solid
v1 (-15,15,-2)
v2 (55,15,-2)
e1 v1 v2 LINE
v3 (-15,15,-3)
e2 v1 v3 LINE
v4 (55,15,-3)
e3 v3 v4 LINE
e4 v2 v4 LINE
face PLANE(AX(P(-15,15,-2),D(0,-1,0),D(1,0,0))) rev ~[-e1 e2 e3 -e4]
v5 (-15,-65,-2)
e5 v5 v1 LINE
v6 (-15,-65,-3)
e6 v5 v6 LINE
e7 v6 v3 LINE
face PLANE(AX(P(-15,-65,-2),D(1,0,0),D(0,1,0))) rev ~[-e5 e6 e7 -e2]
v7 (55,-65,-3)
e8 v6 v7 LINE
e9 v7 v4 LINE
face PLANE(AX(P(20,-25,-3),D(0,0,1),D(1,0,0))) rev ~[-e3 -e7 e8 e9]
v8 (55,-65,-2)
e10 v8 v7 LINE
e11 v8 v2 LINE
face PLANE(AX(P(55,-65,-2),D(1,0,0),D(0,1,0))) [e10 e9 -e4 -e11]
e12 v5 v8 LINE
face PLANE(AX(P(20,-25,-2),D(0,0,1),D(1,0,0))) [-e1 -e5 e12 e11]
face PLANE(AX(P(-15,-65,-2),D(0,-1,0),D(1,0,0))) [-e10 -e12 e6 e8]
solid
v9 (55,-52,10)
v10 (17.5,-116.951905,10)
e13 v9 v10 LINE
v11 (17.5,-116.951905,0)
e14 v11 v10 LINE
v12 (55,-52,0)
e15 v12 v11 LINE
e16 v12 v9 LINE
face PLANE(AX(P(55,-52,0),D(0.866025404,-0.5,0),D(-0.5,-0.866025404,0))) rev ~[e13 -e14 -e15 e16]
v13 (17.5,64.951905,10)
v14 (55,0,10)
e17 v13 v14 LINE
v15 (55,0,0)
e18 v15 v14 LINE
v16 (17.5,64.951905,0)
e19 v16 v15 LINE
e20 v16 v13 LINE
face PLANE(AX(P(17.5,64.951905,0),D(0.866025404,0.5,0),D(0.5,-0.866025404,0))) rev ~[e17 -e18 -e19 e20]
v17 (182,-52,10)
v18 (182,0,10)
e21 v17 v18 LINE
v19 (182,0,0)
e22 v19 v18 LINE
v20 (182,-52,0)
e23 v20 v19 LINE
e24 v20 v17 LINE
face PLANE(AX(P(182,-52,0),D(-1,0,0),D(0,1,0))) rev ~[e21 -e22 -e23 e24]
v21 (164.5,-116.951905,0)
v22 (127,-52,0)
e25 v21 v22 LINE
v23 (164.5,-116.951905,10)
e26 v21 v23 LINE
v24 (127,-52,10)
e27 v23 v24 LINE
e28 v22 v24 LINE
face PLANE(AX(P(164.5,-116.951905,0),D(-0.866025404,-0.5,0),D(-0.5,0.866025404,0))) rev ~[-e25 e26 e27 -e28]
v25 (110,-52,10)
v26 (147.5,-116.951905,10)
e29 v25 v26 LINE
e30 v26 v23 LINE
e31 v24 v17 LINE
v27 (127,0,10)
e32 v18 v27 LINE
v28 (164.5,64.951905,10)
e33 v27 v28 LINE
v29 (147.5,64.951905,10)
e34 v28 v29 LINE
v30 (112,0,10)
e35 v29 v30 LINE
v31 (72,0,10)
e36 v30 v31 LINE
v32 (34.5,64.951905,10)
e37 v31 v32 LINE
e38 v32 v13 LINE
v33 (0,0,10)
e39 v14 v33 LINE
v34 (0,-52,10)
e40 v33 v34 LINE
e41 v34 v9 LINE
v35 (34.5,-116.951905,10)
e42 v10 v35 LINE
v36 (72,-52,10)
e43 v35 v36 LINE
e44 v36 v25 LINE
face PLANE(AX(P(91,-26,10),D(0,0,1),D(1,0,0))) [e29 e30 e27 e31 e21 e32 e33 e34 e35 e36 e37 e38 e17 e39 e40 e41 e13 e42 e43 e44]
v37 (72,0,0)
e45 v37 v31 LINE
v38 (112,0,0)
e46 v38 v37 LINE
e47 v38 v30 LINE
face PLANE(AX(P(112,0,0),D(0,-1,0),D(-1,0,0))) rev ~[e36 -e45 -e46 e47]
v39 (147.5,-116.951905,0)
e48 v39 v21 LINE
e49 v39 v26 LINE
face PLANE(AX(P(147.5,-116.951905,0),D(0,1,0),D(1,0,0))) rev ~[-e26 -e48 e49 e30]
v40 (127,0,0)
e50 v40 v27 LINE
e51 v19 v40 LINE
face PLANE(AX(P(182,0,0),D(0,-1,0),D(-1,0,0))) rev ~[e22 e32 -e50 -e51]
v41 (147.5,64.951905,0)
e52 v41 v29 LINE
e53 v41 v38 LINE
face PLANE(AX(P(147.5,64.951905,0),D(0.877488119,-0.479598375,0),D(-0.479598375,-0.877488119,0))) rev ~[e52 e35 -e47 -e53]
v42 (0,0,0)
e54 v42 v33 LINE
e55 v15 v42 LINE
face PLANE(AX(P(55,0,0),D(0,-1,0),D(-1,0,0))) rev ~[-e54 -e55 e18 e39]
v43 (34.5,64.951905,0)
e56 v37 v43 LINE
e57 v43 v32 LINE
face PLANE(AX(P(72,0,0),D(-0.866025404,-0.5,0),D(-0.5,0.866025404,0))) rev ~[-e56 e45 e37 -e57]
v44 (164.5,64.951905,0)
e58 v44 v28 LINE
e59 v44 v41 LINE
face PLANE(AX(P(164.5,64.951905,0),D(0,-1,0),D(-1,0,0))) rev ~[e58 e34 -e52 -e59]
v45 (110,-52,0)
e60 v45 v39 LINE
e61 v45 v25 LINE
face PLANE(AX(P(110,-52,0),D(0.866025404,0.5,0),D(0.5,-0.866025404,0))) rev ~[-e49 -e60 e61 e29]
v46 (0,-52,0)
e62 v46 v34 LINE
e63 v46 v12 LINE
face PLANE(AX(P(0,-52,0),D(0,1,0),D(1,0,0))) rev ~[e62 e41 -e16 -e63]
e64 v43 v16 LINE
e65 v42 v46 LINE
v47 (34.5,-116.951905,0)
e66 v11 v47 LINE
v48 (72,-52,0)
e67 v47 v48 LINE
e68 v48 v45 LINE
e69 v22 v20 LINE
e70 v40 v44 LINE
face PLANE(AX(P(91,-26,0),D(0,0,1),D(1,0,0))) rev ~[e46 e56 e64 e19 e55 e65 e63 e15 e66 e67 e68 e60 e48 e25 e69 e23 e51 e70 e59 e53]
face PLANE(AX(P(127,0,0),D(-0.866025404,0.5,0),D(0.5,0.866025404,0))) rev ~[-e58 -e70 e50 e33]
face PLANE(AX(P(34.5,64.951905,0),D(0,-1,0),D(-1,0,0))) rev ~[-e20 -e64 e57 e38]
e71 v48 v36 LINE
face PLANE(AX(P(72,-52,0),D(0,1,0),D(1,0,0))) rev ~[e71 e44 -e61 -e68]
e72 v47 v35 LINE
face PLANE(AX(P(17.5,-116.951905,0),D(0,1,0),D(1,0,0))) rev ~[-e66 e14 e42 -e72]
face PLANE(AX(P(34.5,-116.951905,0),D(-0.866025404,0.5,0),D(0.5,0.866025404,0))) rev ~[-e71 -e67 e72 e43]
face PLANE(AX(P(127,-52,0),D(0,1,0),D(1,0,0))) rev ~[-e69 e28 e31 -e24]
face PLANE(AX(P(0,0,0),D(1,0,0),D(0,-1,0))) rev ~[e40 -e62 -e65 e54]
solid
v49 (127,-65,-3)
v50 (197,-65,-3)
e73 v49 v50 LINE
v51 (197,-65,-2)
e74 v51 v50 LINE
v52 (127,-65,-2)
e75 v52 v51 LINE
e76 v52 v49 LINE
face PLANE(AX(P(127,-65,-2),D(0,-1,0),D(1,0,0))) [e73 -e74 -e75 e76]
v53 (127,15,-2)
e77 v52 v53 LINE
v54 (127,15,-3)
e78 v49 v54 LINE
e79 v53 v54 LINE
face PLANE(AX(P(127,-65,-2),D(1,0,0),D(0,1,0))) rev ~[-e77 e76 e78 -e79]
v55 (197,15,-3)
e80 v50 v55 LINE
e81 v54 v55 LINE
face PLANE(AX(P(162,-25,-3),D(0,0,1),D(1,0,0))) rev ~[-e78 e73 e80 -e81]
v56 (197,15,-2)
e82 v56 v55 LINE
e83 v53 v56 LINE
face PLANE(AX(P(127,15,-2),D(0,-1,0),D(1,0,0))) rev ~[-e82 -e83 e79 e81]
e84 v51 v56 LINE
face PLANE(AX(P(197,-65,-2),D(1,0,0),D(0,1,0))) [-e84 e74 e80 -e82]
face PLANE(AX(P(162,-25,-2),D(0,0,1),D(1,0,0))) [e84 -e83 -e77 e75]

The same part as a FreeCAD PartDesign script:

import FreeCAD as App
import Part
import Sketcher

V = App.Vector
Q = App.Units.Quantity


def add_polygon(sketch, points):
    """Adds a closed chain of lines whose ends are joined by coincident constraints."""
    first, n = sketch.GeometryCount, len(points)
    for a, b in zip(points, points[1:] + points[:1]):
        sketch.addGeometry(Part.LineSegment(App.Vector(*a, 0), App.Vector(*b, 0)), False)
    for i in range(n):
        sketch.addConstraint(Sketcher.Constraint("Coincident", first + i, 2, first + (i + 1) % n, 1))

doc = App.newDocument("Part")
body = doc.addObject("PartDesign::Body", "Body")

sketch1 = body.newObject("Sketcher::SketchObject", "Sketch")
sketch1.AttachmentSupport = (doc.getObject("XY_Plane"), [""])
sketch1.MapMode = "FlatFace"
add_polygon(sketch1, [(0, 0), (0, -52), (55, -52), (18, -117), (34, -117), (72, -52), (110, -52), (148, -117), (164, -117), (127, -52), (182, -52), (182, 0), (127, 0), (164, 65), (148, 65), (112, 0), (72, 0), (34, 65), (18, 65), (55, 0)])
sketch1.addConstraint([
    Sketcher.Constraint("Vertical", 0),
    Sketcher.Constraint("Horizontal", 1),
    Sketcher.Constraint("Horizontal", 3),
    Sketcher.Constraint("Horizontal", 5),
    Sketcher.Constraint("Horizontal", 7),
    Sketcher.Constraint("Horizontal", 9),
    Sketcher.Constraint("Vertical", 10),
    Sketcher.Constraint("Horizontal", 11),
    Sketcher.Constraint("Horizontal", 13),
    Sketcher.Constraint("Horizontal", 15),
    Sketcher.Constraint("Horizontal", 17),
    Sketcher.Constraint("Horizontal", 19),
    Sketcher.Constraint("Coincident", 19, 2, -1, 1),
    Sketcher.Constraint("PointOnObject", 10, 2, -1),
    Sketcher.Constraint("PointOnObject", 14, 2, -1),
    Sketcher.Constraint("Parallel", 2, 4),
    Sketcher.Constraint("Parallel", 6, 8),
    Sketcher.Constraint("Parallel", 4, 12),
    Sketcher.Constraint("Parallel", 8, 16),
    Sketcher.Constraint("Parallel", 16, 18),
    Sketcher.Constraint("Horizontal", 1, 2, 4, 2),
    Sketcher.Constraint("Horizontal", 3, 2, 6, 2),
    Sketcher.Constraint("Horizontal", 5, 2, 8, 2),
    Sketcher.Constraint("Horizontal", 13, 2, 16, 2),
    Sketcher.Constraint("Vertical", 8, 2, 11, 2),
    Sketcher.Constraint("Vertical", 7, 2, 12, 2),
    Sketcher.Constraint("Vertical", 6, 2, 13, 2),
    Sketcher.Constraint("Vertical", 4, 2, 15, 2),
    Sketcher.Constraint("Vertical", 3, 2, 16, 2),
    Sketcher.Constraint("Vertical", 2, 2, 17, 2),
    Sketcher.Constraint("Equal", 3, 7),
    Sketcher.Constraint("Equal", 1, 9),
    Sketcher.Constraint("DistanceX", 1, 1, 1, 2, 55.0),
    Sketcher.Constraint("DistanceX", 3, 1, 3, 2, 17.0),
    Sketcher.Constraint("DistanceX", 5, 1, 5, 2, 38.0),
    Sketcher.Constraint("DistanceX", 15, 2, 15, 1, 40.0),
    Sketcher.Constraint("DistanceY", 0, 2, 0, 1, 52.0),
    Sketcher.Constraint("Angle", 2, Q("-120 deg")),
    Sketcher.Constraint("Distance", 2, 75.0),
])
pad1 = body.newObject("PartDesign::Pad", "Pad")
pad1.Profile = sketch1
pad1.Length = 10
body2 = doc.addObject("PartDesign::Body", "Body001")

sketch2 = body2.newObject("Sketcher::SketchObject", "Sketch001")
sketch2.AttachmentSupport = (doc.getObject("XY_Plane001"), [""])
sketch2.MapMode = "FlatFace"
sketch2.AttachmentOffset = App.Placement(V(0, 0, -2), App.Rotation())
add_polygon(sketch2, [(-15, 15), (-15, -65), (55, -65), (55, 15)])
sketch2.addConstraint([
    Sketcher.Constraint("Vertical", 0),
    Sketcher.Constraint("Horizontal", 1),
    Sketcher.Constraint("Vertical", 2),
    Sketcher.Constraint("Horizontal", 3),
    Sketcher.Constraint("DistanceX", 1, 1, 1, 2, 70.0),
    Sketcher.Constraint("DistanceY", 0, 2, 0, 1, 80.0),
    Sketcher.Constraint("DistanceX", 0, 2, -1, 1, 15.0),
    Sketcher.Constraint("DistanceY", 0, 2, -1, 1, 65.0),
])
pad2 = body2.newObject("PartDesign::Pad", "Pad001")
pad2.Profile = sketch2
pad2.Length = 1
pad2.Reversed = True
body3 = doc.addObject("PartDesign::Body", "Body002")

sketch3 = body3.newObject("Sketcher::SketchObject", "Sketch002")
sketch3.AttachmentSupport = (doc.getObject("XY_Plane002"), [""])
sketch3.MapMode = "FlatFace"
sketch3.AttachmentOffset = App.Placement(V(0, 0, -2), App.Rotation())
add_polygon(sketch3, [(127, 15), (127, -65), (197, -65), (197, 15)])
sketch3.addConstraint([
    Sketcher.Constraint("Vertical", 0),
    Sketcher.Constraint("Horizontal", 1),
    Sketcher.Constraint("Vertical", 2),
    Sketcher.Constraint("Horizontal", 3),
    Sketcher.Constraint("DistanceX", 1, 1, 1, 2, 70.0),
    Sketcher.Constraint("DistanceY", 0, 2, 0, 1, 80.0),
    Sketcher.Constraint("DistanceX", -1, 1, 0, 2, 127.0),
    Sketcher.Constraint("DistanceY", 0, 2, -1, 1, 65.0),
])
pad3 = body3.newObject("PartDesign::Pad", "Pad002")
pad3.Profile = sketch3
pad3.Length = 1
pad3.Reversed = True

doc.recompute()
